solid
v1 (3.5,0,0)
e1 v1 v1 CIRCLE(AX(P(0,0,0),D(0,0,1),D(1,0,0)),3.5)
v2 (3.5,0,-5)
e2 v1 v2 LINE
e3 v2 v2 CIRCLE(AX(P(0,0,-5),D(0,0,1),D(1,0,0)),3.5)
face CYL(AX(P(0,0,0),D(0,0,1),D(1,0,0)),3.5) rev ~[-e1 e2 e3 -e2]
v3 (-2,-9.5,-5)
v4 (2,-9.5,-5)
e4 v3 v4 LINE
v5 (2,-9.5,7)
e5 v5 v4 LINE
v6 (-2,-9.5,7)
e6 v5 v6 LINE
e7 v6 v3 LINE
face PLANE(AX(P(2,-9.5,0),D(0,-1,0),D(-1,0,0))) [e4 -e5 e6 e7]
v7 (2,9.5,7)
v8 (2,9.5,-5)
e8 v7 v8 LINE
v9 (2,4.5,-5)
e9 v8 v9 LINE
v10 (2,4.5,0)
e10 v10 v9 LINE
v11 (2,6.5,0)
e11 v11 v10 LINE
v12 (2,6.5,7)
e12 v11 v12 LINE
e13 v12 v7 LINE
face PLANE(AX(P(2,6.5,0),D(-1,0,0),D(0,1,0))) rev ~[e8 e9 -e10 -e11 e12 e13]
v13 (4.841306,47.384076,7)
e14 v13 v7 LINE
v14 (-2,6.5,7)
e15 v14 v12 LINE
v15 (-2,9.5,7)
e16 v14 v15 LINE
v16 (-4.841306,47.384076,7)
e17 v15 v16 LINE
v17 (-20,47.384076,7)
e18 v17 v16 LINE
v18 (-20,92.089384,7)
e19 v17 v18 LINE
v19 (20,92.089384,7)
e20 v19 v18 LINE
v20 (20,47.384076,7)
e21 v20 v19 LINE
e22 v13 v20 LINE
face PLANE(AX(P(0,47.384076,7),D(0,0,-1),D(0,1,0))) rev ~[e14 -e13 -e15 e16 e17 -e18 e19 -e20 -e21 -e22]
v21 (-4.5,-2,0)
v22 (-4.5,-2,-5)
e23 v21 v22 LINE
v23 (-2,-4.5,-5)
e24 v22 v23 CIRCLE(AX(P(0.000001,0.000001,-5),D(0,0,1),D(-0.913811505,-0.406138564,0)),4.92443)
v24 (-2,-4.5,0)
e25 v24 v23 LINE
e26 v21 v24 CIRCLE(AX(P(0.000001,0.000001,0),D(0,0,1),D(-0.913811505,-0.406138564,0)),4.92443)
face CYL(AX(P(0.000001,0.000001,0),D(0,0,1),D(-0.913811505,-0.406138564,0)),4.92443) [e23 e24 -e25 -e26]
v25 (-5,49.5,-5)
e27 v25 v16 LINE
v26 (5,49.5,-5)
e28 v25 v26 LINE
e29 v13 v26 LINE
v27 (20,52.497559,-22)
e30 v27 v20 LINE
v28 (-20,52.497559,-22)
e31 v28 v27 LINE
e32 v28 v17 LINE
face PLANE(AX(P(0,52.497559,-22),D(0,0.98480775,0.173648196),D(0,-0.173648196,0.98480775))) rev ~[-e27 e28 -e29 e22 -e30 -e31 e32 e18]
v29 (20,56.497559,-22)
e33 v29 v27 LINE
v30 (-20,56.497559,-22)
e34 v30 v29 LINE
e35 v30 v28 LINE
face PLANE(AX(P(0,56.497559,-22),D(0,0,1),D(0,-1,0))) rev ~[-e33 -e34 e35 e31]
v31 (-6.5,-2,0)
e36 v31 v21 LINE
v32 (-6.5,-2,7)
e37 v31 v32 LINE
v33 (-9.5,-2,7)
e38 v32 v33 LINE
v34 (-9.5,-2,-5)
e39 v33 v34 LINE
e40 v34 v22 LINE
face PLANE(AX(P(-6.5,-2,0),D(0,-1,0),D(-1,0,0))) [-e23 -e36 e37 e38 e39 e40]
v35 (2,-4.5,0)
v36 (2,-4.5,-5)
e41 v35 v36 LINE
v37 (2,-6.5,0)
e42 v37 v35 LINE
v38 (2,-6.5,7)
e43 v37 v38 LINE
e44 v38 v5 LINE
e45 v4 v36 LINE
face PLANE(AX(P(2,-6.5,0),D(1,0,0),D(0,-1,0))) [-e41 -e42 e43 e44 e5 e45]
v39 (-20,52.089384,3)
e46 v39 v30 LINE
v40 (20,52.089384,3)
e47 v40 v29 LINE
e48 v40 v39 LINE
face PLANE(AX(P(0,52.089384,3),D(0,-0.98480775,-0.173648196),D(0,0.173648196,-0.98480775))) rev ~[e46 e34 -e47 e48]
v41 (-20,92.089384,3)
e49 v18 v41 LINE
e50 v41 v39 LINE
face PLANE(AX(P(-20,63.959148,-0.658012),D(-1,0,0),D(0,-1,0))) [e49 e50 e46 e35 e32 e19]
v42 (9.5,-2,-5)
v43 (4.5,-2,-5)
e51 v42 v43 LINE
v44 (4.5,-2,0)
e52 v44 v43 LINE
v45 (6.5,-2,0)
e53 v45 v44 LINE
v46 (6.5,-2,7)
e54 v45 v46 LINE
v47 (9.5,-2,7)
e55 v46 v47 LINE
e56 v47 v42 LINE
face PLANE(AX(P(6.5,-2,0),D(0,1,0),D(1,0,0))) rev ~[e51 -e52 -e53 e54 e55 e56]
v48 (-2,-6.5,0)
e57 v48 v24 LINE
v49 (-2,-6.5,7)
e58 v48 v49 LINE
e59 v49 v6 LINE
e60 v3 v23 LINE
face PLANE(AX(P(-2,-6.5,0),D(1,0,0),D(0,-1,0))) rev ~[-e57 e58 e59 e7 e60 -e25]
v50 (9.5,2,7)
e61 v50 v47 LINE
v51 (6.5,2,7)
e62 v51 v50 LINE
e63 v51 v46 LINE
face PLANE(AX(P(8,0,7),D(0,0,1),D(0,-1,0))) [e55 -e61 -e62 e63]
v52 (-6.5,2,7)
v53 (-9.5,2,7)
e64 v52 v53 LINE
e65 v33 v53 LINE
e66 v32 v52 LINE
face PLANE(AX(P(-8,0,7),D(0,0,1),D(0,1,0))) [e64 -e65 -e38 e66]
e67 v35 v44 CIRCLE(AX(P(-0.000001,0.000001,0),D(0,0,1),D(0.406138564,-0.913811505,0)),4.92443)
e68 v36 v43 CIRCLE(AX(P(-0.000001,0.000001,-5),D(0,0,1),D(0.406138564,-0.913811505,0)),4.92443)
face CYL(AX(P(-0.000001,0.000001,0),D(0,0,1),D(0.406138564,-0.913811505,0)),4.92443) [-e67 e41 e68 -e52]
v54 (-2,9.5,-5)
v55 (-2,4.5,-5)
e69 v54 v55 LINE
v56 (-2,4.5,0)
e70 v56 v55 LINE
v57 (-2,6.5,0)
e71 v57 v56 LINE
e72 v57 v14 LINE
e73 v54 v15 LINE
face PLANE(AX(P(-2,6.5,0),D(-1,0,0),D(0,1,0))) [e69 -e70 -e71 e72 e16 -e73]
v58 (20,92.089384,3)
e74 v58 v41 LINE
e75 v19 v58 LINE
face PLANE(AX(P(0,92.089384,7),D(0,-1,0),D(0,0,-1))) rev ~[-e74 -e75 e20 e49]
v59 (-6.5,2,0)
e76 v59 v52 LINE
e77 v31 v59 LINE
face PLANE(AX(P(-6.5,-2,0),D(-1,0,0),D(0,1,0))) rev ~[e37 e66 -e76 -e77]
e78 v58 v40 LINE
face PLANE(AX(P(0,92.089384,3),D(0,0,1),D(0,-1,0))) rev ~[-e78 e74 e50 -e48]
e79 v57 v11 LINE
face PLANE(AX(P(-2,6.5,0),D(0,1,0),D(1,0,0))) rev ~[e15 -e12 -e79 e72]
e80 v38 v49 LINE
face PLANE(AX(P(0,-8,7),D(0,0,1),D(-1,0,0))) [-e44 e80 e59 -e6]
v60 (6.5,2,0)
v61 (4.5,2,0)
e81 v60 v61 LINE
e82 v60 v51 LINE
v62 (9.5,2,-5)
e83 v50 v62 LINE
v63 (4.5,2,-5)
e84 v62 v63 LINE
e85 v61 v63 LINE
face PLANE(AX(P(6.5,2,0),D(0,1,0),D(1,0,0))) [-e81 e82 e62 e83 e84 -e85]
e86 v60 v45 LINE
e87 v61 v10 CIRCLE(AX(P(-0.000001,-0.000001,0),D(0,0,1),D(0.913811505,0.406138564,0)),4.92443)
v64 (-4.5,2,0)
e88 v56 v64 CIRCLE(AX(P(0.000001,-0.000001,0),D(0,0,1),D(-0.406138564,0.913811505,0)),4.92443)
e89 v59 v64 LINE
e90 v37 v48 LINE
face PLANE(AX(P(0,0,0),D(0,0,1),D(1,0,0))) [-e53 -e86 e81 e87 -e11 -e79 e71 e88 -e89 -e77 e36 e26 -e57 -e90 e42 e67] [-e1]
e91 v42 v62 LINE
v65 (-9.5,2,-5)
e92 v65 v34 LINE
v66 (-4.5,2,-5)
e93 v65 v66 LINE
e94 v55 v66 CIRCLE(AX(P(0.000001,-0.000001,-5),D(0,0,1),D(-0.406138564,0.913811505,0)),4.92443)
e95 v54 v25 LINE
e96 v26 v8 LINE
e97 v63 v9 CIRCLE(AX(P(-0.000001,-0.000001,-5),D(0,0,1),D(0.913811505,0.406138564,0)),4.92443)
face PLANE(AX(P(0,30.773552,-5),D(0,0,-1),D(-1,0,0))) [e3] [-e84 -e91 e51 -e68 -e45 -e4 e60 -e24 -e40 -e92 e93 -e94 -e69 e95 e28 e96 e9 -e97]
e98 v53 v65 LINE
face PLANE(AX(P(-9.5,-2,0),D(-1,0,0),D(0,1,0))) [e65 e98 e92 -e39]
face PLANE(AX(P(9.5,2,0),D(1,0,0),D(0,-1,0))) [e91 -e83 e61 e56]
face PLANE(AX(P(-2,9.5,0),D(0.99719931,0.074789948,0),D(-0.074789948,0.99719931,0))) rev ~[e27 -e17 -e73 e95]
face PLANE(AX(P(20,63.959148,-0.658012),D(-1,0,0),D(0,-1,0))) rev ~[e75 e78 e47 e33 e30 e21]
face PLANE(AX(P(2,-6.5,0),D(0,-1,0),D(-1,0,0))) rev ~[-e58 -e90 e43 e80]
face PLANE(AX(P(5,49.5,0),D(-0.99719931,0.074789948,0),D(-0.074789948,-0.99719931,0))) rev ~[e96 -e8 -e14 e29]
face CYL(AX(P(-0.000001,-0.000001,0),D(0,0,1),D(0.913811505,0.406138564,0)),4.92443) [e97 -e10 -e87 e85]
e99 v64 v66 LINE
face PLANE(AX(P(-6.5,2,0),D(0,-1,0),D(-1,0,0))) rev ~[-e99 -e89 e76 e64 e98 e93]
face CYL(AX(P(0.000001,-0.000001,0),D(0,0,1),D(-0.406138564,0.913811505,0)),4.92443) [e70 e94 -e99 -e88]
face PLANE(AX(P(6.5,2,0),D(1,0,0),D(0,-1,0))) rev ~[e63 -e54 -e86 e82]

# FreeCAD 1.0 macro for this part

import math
import FreeCAD as App
import Part
import Sketcher

V = App.Vector
Q = App.Units.Quantity

doc = App.newDocument("Part")
params = doc.addObject("Spreadsheet::Sheet", "Params")
for row, (alias, value) in enumerate([
    ("sketch1_diameter", "7 mm"),
    ("sketch1_width", "5 mm"),
    ("sketch1_width2", "4 mm"),
    ("pad1_length", "5 mm"),
    ("sketch2_width", "4 mm"),
    ("sketch2_height", "3 mm"),
    ("pad2_length", "7 mm"),
    ("sketch3_width", "4 mm"),
    ("sketch3_width2", "10 mm"),
    ("pad3_length", "7 mm"),
    ("sketch4_width", "4 mm"),
    ("sketch4_width2", "10 mm"),
    ("pad4_length", "5 mm"),
    ("sketch5_width", "4 mm"),
    ("sketch5_width2", "40 mm"),
    ("pad5_length", "40 mm"),
], start=1):
    params.set(f"A{row}", alias)
    params.set(f"B{row}", "=" + value)
    params.setAlias(f"B{row}", alias)

body = doc.addObject("PartDesign::Body", "Body")

sketch1 = doc.addObject("Sketcher::SketchObject", "Sketch")
body.addObject(sketch1)
sketch1.AttachmentSupport = (doc.XY_Plane, [""])
sketch1.MapMode = "FlatFace"
sketch1.addGeometry(Part.LineSegment(V(-9.5, 2, 0), V(-9.5, -2, 0)), False)
sketch1.addGeometry(Part.LineSegment(V(-9.5, -2, 0), V(-4.5, -2, 0)), False)
sketch1.addGeometry(Part.ArcOfCircle(Part.Circle(V(0, 0, 0), V(0, 0, 1), 4.9), math.radians(-156), math.radians(-114)), False)
sketch1.addGeometry(Part.LineSegment(V(-2, -4.5, 0), V(-2, -9.5, 0)), False)
sketch1.addGeometry(Part.LineSegment(V(-2, -9.5, 0), V(2, -9.5, 0)), False)
sketch1.addGeometry(Part.LineSegment(V(2, -9.5, 0), V(2, -4.5, 0)), False)
sketch1.addGeometry(Part.ArcOfCircle(Part.Circle(V(0, 0, 0), V(0, 0, 1), 4.9), math.radians(-66), math.radians(-24)), False)
sketch1.addGeometry(Part.LineSegment(V(4.5, -2, 0), V(9.5, -2, 0)), False)
sketch1.addGeometry(Part.LineSegment(V(9.5, -2, 0), V(9.5, 2, 0)), False)
sketch1.addGeometry(Part.LineSegment(V(9.5, 2, 0), V(4.5, 2, 0)), False)
sketch1.addGeometry(Part.ArcOfCircle(Part.Circle(V(0, 0, 0), V(0, 0, 1), 4.9), math.radians(24), math.radians(66)), False)
sketch1.addGeometry(Part.LineSegment(V(2, 4.5, 0), V(2, 9.5, 0)), False)
sketch1.addGeometry(Part.LineSegment(V(2, 9.5, 0), V(-2, 9.5, 0)), False)
sketch1.addGeometry(Part.LineSegment(V(-2, 9.5, 0), V(-2, 4.5, 0)), False)
sketch1.addGeometry(Part.ArcOfCircle(Part.Circle(V(0, 0, 0), V(0, 0, 1), 4.9), math.radians(114), math.radians(156)), False)
sketch1.addGeometry(Part.LineSegment(V(-4.5, 2, 0), V(-9.5, 2, 0)), False)
sketch1.addGeometry(Part.Circle(V(0, 0, 0), V(0, 0, 1), 3.5), False)
sketch1.addConstraint(Sketcher.Constraint("Coincident", 0, 2, 1, 1))
sketch1.addConstraint(Sketcher.Constraint("Coincident", 1, 2, 2, 1))
sketch1.addConstraint(Sketcher.Constraint("Coincident", 2, 2, 3, 1))
sketch1.addConstraint(Sketcher.Constraint("Coincident", 3, 2, 4, 1))
sketch1.addConstraint(Sketcher.Constraint("Coincident", 4, 2, 5, 1))
sketch1.addConstraint(Sketcher.Constraint("Coincident", 5, 2, 6, 1))
sketch1.addConstraint(Sketcher.Constraint("Coincident", 6, 2, 7, 1))
sketch1.addConstraint(Sketcher.Constraint("Coincident", 7, 2, 8, 1))
sketch1.addConstraint(Sketcher.Constraint("Coincident", 8, 2, 9, 1))
sketch1.addConstraint(Sketcher.Constraint("Coincident", 9, 2, 10, 1))
sketch1.addConstraint(Sketcher.Constraint("Coincident", 10, 2, 11, 1))
sketch1.addConstraint(Sketcher.Constraint("Coincident", 11, 2, 12, 1))
sketch1.addConstraint(Sketcher.Constraint("Coincident", 12, 2, 13, 1))
sketch1.addConstraint(Sketcher.Constraint("Coincident", 13, 2, 14, 1))
sketch1.addConstraint(Sketcher.Constraint("Coincident", 14, 2, 15, 1))
sketch1.addConstraint(Sketcher.Constraint("Coincident", 15, 2, 0, 1))
sketch1.addConstraint(Sketcher.Constraint("Vertical", 0))
sketch1.addConstraint(Sketcher.Constraint("Horizontal", 1))
sketch1.addConstraint(Sketcher.Constraint("Vertical", 3))
sketch1.addConstraint(Sketcher.Constraint("Horizontal", 4))
sketch1.addConstraint(Sketcher.Constraint("Vertical", 5))
sketch1.addConstraint(Sketcher.Constraint("Horizontal", 7))
sketch1.addConstraint(Sketcher.Constraint("Vertical", 8))
sketch1.addConstraint(Sketcher.Constraint("Horizontal", 9))
sketch1.addConstraint(Sketcher.Constraint("Vertical", 11))
sketch1.addConstraint(Sketcher.Constraint("Horizontal", 12))
sketch1.addConstraint(Sketcher.Constraint("Vertical", 13))
sketch1.addConstraint(Sketcher.Constraint("Horizontal", 15))
sketch1.addConstraint(Sketcher.Constraint("Coincident", 2, 3, -1, 1))
sketch1.addConstraint(Sketcher.Constraint("Coincident", 6, 3, -1, 1))
sketch1.addConstraint(Sketcher.Constraint("Coincident", 10, 3, -1, 1))
sketch1.addConstraint(Sketcher.Constraint("Coincident", 14, 3, -1, 1))
sketch1.addConstraint(Sketcher.Constraint("Coincident", 16, 3, -1, 1))
sketch1.addConstraint(Sketcher.Constraint("Equal", 2, 6))
sketch1.addConstraint(Sketcher.Constraint("Equal", 6, 10))
sketch1.addConstraint(Sketcher.Constraint("Equal", 10, 14))
sketch1.addConstraint(Sketcher.Constraint("Symmetric", 0, 2, 8, 2, -1, 1))
sketch1.addConstraint(Sketcher.Constraint("Symmetric", 3, 2, 11, 2, -1, 1))
sketch1.addConstraint(Sketcher.Constraint("Horizontal", 2, 2, 5, 2))
sketch1.addConstraint(Sketcher.Constraint("Horizontal", 1, 2, 6, 2))
sketch1.addConstraint(Sketcher.Constraint("Horizontal", 10, 2, 13, 2))
sketch1.addConstraint(Sketcher.Constraint("Horizontal", 9, 2, 14, 2))
sketch1.addConstraint(Sketcher.Constraint("Equal", 12, 0))
sketch1.addConstraint(Sketcher.Constraint("Equal", 15, 3))
sketch1.addConstraint(Sketcher.Constraint("Diameter", 16, 7.0))
sketch1.addConstraint(Sketcher.Constraint("DistanceX", 1, 1, 1, 2, 5.0))
sketch1.addConstraint(Sketcher.Constraint("DistanceX", 4, 1, 4, 2, 4.0))
sketch1.addConstraint(Sketcher.Constraint("DistanceX", 0, 2, -1, 1, 9.5))
sketch1.setExpression("Constraints[44]", "Params.sketch1_diameter")
sketch1.setExpression("Constraints[45]", "Params.sketch1_width")
sketch1.setExpression("Constraints[46]", "Params.sketch1_width2")
pad1 = doc.addObject("PartDesign::Pad", "Pad")
body.addObject(pad1)
pad1.Profile = sketch1
pad1.setExpression("Length", "Params.pad1_length")
pad1.Reversed = True

sketch2 = doc.addObject("Sketcher::SketchObject", "Sketch001")
body.addObject(sketch2)
sketch2.AttachmentSupport = (doc.XY_Plane, [""])
sketch2.MapMode = "FlatFace"
sketch2.addGeometry(Part.LineSegment(V(-2, 9.5, 0), V(-2, 6.5, 0)), False)
sketch2.addGeometry(Part.LineSegment(V(-2, 6.5, 0), V(2, 6.5, 0)), False)
sketch2.addGeometry(Part.LineSegment(V(2, 6.5, 0), V(2, 9.5, 0)), False)
sketch2.addGeometry(Part.LineSegment(V(2, 9.5, 0), V(-2, 9.5, 0)), False)
sketch2.addConstraint(Sketcher.Constraint("Coincident", 0, 2, 1, 1))
sketch2.addConstraint(Sketcher.Constraint("Coincident", 1, 2, 2, 1))
sketch2.addConstraint(Sketcher.Constraint("Coincident", 2, 2, 3, 1))
sketch2.addConstraint(Sketcher.Constraint("Coincident", 3, 2, 0, 1))
sketch2.addConstraint(Sketcher.Constraint("Vertical", 0))
sketch2.addConstraint(Sketcher.Constraint("Horizontal", 1))
sketch2.addConstraint(Sketcher.Constraint("Vertical", 2))
sketch2.addConstraint(Sketcher.Constraint("Horizontal", 3))
sketch2.addConstraint(Sketcher.Constraint("DistanceX", 1, 1, 1, 2, 4.0))
sketch2.addConstraint(Sketcher.Constraint("DistanceY", 0, 2, 0, 1, 3.0))
sketch2.addConstraint(Sketcher.Constraint("DistanceX", 0, 2, -1, 1, 2.0))
sketch2.addConstraint(Sketcher.Constraint("DistanceY", -1, 1, 0, 2, 6.5))
sketch2.setExpression("Constraints[8]", "Params.sketch2_width")
sketch2.setExpression("Constraints[9]", "Params.sketch2_height")
pad2 = doc.addObject("PartDesign::Pad", "Pad001")
body.addObject(pad2)
pad2.Profile = sketch2
pad2.setExpression("Length", "Params.pad2_length")
doc.recompute()

polarpattern = doc.addObject("PartDesign::PolarPattern", "PolarPattern")
body.addObject(polarpattern)
polarpattern.Originals = [pad2]
polarpattern.Axis = (doc.Z_Axis, [""])
polarpattern.Angle = 360
polarpattern.Occurrences = 4
body.Tip = polarpattern

sketch3 = doc.addObject("Sketcher::SketchObject", "Sketch002")
body.addObject(sketch3)
sketch3.AttachmentSupport = (doc.XY_Plane, [""])
sketch3.MapMode = "FlatFace"
sketch3.addGeometry(Part.LineSegment(V(-5, 49.5, 0), V(-2, 9.5, 0)), False)
sketch3.addGeometry(Part.LineSegment(V(-2, 9.5, 0), V(2, 9.5, 0)), False)
sketch3.addGeometry(Part.LineSegment(V(2, 9.5, 0), V(5, 49.5, 0)), False)
sketch3.addGeometry(Part.LineSegment(V(5, 49.5, 0), V(-5, 49.5, 0)), False)
sketch3.addConstraint(Sketcher.Constraint("Coincident", 0, 2, 1, 1))
sketch3.addConstraint(Sketcher.Constraint("Coincident", 1, 2, 2, 1))
sketch3.addConstraint(Sketcher.Constraint("Coincident", 2, 2, 3, 1))
sketch3.addConstraint(Sketcher.Constraint("Coincident", 3, 2, 0, 1))
sketch3.addConstraint(Sketcher.Constraint("Horizontal", 1))
sketch3.addConstraint(Sketcher.Constraint("Horizontal", 3))
sketch3.addConstraint(Sketcher.Constraint("Equal", 0, 2))
sketch3.addConstraint(Sketcher.Constraint("DistanceX", 1, 1, 1, 2, 4.0))
sketch3.addConstraint(Sketcher.Constraint("DistanceX", 3, 2, 3, 1, 10.0))
sketch3.addConstraint(Sketcher.Constraint("DistanceX", 0, 2, -1, 1, 2.0))
sketch3.addConstraint(Sketcher.Constraint("DistanceY", 1, 2, 2, 2, 40.0))
sketch3.addConstraint(Sketcher.Constraint("DistanceY", -1, 1, 0, 2, 9.5))
sketch3.setExpression("Constraints[7]", "Params.sketch3_width")
sketch3.setExpression("Constraints[8]", "Params.sketch3_width2")
pad3 = doc.addObject("PartDesign::Pad", "Pad002")
body.addObject(pad3)
pad3.Profile = sketch3
pad3.setExpression("Length", "Params.pad3_length")

sketch4 = doc.addObject("Sketcher::SketchObject", "Sketch003")
body.addObject(sketch4)
sketch4.AttachmentSupport = (doc.XY_Plane, [""])
sketch4.MapMode = "FlatFace"
sketch4.addGeometry(Part.LineSegment(V(-5, 49.5, 0), V(-2, 9.5, 0)), False)
sketch4.addGeometry(Part.LineSegment(V(-2, 9.5, 0), V(2, 9.5, 0)), False)
sketch4.addGeometry(Part.LineSegment(V(2, 9.5, 0), V(5, 49.5, 0)), False)
sketch4.addGeometry(Part.LineSegment(V(5, 49.5, 0), V(-5, 49.5, 0)), False)
sketch4.addConstraint(Sketcher.Constraint("Coincident", 0, 2, 1, 1))
sketch4.addConstraint(Sketcher.Constraint("Coincident", 1, 2, 2, 1))
sketch4.addConstraint(Sketcher.Constraint("Coincident", 2, 2, 3, 1))
sketch4.addConstraint(Sketcher.Constraint("Coincident", 3, 2, 0, 1))
sketch4.addConstraint(Sketcher.Constraint("Horizontal", 1))
sketch4.addConstraint(Sketcher.Constraint("Horizontal", 3))
sketch4.addConstraint(Sketcher.Constraint("Equal", 0, 2))
sketch4.addConstraint(Sketcher.Constraint("DistanceX", 1, 1, 1, 2, 4.0))
sketch4.addConstraint(Sketcher.Constraint("DistanceX", 3, 2, 3, 1, 10.0))
sketch4.addConstraint(Sketcher.Constraint("DistanceX", 0, 2, -1, 1, 2.0))
sketch4.addConstraint(Sketcher.Constraint("DistanceY", 1, 2, 2, 2, 40.0))
sketch4.addConstraint(Sketcher.Constraint("DistanceY", -1, 1, 0, 2, 9.5))
sketch4.setExpression("Constraints[7]", "Params.sketch4_width")
sketch4.setExpression("Constraints[8]", "Params.sketch4_width2")
pad4 = doc.addObject("PartDesign::Pad", "Pad003")
body.addObject(pad4)
pad4.Profile = sketch4
pad4.setExpression("Length", "Params.pad4_length")
pad4.Reversed = True

sketch5 = doc.addObject("Sketcher::SketchObject", "Sketch004")
body.addObject(sketch5)
sketch5.AttachmentSupport = (doc.YZ_Plane, [""])
sketch5.MapMode = "FlatFace"
sketch5.addGeometry(Part.LineSegment(V(92.1, 7, 0), V(47.4, 7, 0)), False)
sketch5.addGeometry(Part.LineSegment(V(47.4, 7, 0), V(52.5, -22, 0)), False)
sketch5.addGeometry(Part.LineSegment(V(52.5, -22, 0), V(56.5, -22, 0)), False)
sketch5.addGeometry(Part.LineSegment(V(56.5, -22, 0), V(52.1, 3, 0)), False)
sketch5.addGeometry(Part.LineSegment(V(52.1, 3, 0), V(92.1, 3, 0)), False)
sketch5.addGeometry(Part.LineSegment(V(92.1, 3, 0), V(92.1, 7, 0)), False)
sketch5.addConstraint(Sketcher.Constraint("Coincident", 0, 2, 1, 1))
sketch5.addConstraint(Sketcher.Constraint("Coincident", 1, 2, 2, 1))
sketch5.addConstraint(Sketcher.Constraint("Coincident", 2, 2, 3, 1))
sketch5.addConstraint(Sketcher.Constraint("Coincident", 3, 2, 4, 1))
sketch5.addConstraint(Sketcher.Constraint("Coincident", 4, 2, 5, 1))
sketch5.addConstraint(Sketcher.Constraint("Coincident", 5, 2, 0, 1))
sketch5.addConstraint(Sketcher.Constraint("Horizontal", 0))
sketch5.addConstraint(Sketcher.Constraint("Horizontal", 2))
sketch5.addConstraint(Sketcher.Constraint("Horizontal", 4))
sketch5.addConstraint(Sketcher.Constraint("Vertical", 5))
sketch5.addConstraint(Sketcher.Constraint("Parallel", 1, 3))
sketch5.addConstraint(Sketcher.Constraint("Equal", 2, 5))
sketch5.addConstraint(Sketcher.Constraint("DistanceX", 2, 1, 2, 2, 4.0))
sketch5.addConstraint(Sketcher.Constraint("DistanceX", 4, 1, 4, 2, 40.0))
sketch5.addConstraint(Sketcher.Constraint("Angle", 1, Q("-79.999999 deg")))
sketch5.addConstraint(Sketcher.Constraint("DistanceY", -1, 1, 0, 2, 7.0))
sketch5.addConstraint(Sketcher.Constraint("DistanceY", 1, 2, -1, 1, 22.0))
sketch5.addConstraint(Sketcher.Constraint("DistanceX", -1, 1, 1, 2, 52.497559))
sketch5.setExpression("Constraints[12]", "Params.sketch5_width")
sketch5.setExpression("Constraints[13]", "Params.sketch5_width2")
pad5 = doc.addObject("PartDesign::Pad", "Pad004")
body.addObject(pad5)
pad5.Profile = sketch5
pad5.setExpression("Length", "Params.pad5_length")
pad5.Midplane = True

doc.recompute()
